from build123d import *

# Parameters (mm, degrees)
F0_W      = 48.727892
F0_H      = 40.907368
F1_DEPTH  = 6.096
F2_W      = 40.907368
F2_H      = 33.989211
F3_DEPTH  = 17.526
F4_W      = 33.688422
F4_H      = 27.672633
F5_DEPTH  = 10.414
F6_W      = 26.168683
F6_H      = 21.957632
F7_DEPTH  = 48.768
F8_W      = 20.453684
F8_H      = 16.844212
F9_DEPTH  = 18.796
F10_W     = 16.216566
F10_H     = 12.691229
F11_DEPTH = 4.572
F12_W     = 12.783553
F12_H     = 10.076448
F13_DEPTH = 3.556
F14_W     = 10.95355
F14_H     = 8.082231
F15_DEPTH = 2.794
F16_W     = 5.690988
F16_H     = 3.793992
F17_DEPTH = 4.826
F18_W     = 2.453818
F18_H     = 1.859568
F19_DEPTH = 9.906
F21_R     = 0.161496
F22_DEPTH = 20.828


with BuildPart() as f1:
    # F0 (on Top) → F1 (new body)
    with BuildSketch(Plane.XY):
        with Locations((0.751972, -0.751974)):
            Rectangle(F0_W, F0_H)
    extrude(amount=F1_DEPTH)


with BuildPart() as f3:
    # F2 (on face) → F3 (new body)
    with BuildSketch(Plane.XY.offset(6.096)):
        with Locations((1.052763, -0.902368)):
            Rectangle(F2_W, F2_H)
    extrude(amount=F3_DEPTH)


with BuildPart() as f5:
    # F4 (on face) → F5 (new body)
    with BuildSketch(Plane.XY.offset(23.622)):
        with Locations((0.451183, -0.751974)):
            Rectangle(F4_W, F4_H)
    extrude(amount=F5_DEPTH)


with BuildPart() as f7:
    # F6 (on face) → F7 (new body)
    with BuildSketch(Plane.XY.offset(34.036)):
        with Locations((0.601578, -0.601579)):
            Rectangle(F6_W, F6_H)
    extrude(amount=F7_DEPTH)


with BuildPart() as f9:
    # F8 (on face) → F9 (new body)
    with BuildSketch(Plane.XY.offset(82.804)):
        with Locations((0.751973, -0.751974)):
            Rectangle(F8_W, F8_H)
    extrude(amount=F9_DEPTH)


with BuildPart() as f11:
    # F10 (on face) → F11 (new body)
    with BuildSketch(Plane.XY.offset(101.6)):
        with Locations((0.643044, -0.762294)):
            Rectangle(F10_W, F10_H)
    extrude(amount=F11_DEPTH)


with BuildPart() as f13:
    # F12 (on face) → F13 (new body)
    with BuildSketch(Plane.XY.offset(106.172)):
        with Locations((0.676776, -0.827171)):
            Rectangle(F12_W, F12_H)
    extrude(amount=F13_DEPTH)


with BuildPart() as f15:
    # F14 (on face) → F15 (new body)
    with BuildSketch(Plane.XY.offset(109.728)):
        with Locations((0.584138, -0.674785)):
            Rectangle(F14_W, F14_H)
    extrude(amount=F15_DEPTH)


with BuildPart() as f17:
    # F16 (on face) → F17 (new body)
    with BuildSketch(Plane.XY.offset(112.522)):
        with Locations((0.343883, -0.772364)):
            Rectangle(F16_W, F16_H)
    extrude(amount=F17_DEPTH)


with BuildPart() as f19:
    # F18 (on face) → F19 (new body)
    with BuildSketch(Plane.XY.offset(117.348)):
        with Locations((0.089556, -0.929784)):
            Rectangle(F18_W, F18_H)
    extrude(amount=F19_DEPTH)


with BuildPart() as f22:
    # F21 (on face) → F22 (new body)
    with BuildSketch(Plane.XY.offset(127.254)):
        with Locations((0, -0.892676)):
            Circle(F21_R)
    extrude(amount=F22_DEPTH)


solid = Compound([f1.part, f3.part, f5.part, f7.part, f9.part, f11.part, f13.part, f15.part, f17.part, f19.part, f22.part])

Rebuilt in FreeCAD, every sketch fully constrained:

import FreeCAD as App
import Part
import Sketcher

V = App.Vector
Q = App.Units.Quantity

doc = App.newDocument("Part")
params = doc.addObject("Spreadsheet::Sheet", "Params")
for row, (alias, value) in enumerate([
    ("pad1_length", "0.24 in"),
    ("pad2_length", "0.69 in"),
    ("pad3_length", "0.41 in"),
    ("pad4_length", "1.92 in"),
    ("pad5_length", "0.74 in"),
    ("pad6_length", "0.18 in"),
    ("pad7_length", "0.14 in"),
    ("pad8_length", "0.11 in"),
    ("pad9_length", "0.19 in"),
    ("pad10_length", "0.39 in"),
    ("pad11_length", "0.82 in"),
], start=1):
    params.set(f"A{row}", alias)
    params.set(f"B{row}", "=" + value)
    params.setAlias(f"B{row}", alias)

body = doc.addObject("PartDesign::Body", "Body")

# Sketch on XY plane
sketch1 = doc.addObject("Sketcher::SketchObject", "Sketch")
body.addObject(sketch1)
sketch1.AttachmentSupport = (doc.XY_Plane, [""])
sketch1.MapMode = "FlatFace"
sketch1.addGeometry([
    Part.LineSegment(V(-24, 20, 0), V(-24, -21, 0)),
    Part.LineSegment(V(-24, -21, 0), V(25, -21, 0)),
    Part.LineSegment(V(25, -21, 0), V(25, 20, 0)),
    Part.LineSegment(V(25, 20, 0), V(-24, 20, 0)),
], False)
sketch1.addConstraint([
    Sketcher.Constraint("Coincident", 0, 2, 1, 1),
    Sketcher.Constraint("Coincident", 1, 2, 2, 1),
    Sketcher.Constraint("Coincident", 2, 2, 3, 1),
    Sketcher.Constraint("Coincident", 3, 2, 0, 1),
    Sketcher.Constraint("Vertical", 0),
    Sketcher.Constraint("Horizontal", 1),
    Sketcher.Constraint("Vertical", 2),
    Sketcher.Constraint("Horizontal", 3),
    Sketcher.Constraint("DistanceX", 1, 1, 1, 2, 48.727892),
    Sketcher.Constraint("DistanceY", 0, 2, 0, 1, 40.907368),
    Sketcher.Constraint("DistanceX", -1, 1, 1, 2, 25.115918),
    Sketcher.Constraint("DistanceY", -1, 1, 2, 2, 19.70171),
])
pad1 = doc.addObject("PartDesign::Pad", "Pad")
body.addObject(pad1)
pad1.Profile = sketch1
pad1.setExpression("Length", "Params.pad1_length")
body2 = doc.addObject("PartDesign::Body", "Body001")

# Sketch on XY plane
sketch2 = doc.addObject("Sketcher::SketchObject", "Sketch001")
body2.addObject(sketch2)
sketch2.AttachmentSupport = (doc.getObject("XY_Plane001"), [""])
sketch2.MapMode = "FlatFace"
sketch2.AttachmentOffset = App.Placement(V(0, 0, 0.24 * 25.4), App.Rotation())
sketch2.addGeometry([
    Part.LineSegment(V(-19, 16, 0), V(-19, -18, 0)),
    Part.LineSegment(V(-19, -18, 0), V(22, -18, 0)),
    Part.LineSegment(V(22, -18, 0), V(22, 16, 0)),
    Part.LineSegment(V(22, 16, 0), V(-19, 16, 0)),
], False)
sketch2.addConstraint([
    Sketcher.Constraint("Coincident", 0, 2, 1, 1),
    Sketcher.Constraint("Coincident", 1, 2, 2, 1),
    Sketcher.Constraint("Coincident", 2, 2, 3, 1),
    Sketcher.Constraint("Coincident", 3, 2, 0, 1),
    Sketcher.Constraint("Vertical", 0),
    Sketcher.Constraint("Horizontal", 1),
    Sketcher.Constraint("Vertical", 2),
    Sketcher.Constraint("Horizontal", 3),
    Sketcher.Constraint("DistanceX", 1, 1, 1, 2, 40.907368),
    Sketcher.Constraint("DistanceY", 0, 2, 0, 1, 33.989211),
    Sketcher.Constraint("DistanceX", 0, 2, -1, 1, 19.400921),
    Sketcher.Constraint("DistanceY", 0, 2, -1, 1, 17.896974),
])
pad2 = doc.addObject("PartDesign::Pad", "Pad001")
body2.addObject(pad2)
pad2.Profile = sketch2
pad2.setExpression("Length", "Params.pad2_length")
body3 = doc.addObject("PartDesign::Body", "Body002")

# Sketch on XY plane
sketch3 = doc.addObject("Sketcher::SketchObject", "Sketch002")
body3.addObject(sketch3)
sketch3.AttachmentSupport = (doc.getObject("XY_Plane002"), [""])
sketch3.MapMode = "FlatFace"
sketch3.AttachmentOffset = App.Placement(V(0, 0, 0.93 * 25.4), App.Rotation())
sketch3.addGeometry([
    Part.LineSegment(V(-16, 13, 0), V(-16, -15, 0)),
    Part.LineSegment(V(-16, -15, 0), V(17, -15, 0)),
    Part.LineSegment(V(17, -15, 0), V(17, 13, 0)),
    Part.LineSegment(V(17, 13, 0), V(-16, 13, 0)),
], False)
sketch3.addConstraint([
    Sketcher.Constraint("Coincident", 0, 2, 1, 1),
    Sketcher.Constraint("Coincident", 1, 2, 2, 1),
    Sketcher.Constraint("Coincident", 2, 2, 3, 1),
    Sketcher.Constraint("Coincident", 3, 2, 0, 1),
    Sketcher.Constraint("Vertical", 0),
    Sketcher.Constraint("Horizontal", 1),
    Sketcher.Constraint("Vertical", 2),
    Sketcher.Constraint("Horizontal", 3),
    Sketcher.Constraint("DistanceX", 1, 1, 1, 2, 33.688422),
    Sketcher.Constraint("DistanceY", 0, 2, 0, 1, 27.672633),
    Sketcher.Constraint("DistanceX", 0, 2, -1, 1, 16.393028),
    Sketcher.Constraint("DistanceY", 0, 2, -1, 1, 14.58829),
])
pad3 = doc.addObject("PartDesign::Pad", "Pad002")
body3.addObject(pad3)
pad3.Profile = sketch3
pad3.setExpression("Length", "Params.pad3_length")
body4 = doc.addObject("PartDesign::Body", "Body003")

# Sketch on XY plane
sketch4 = doc.addObject("Sketcher::SketchObject", "Sketch003")
body4.addObject(sketch4)
sketch4.AttachmentSupport = (doc.getObject("XY_Plane003"), [""])
sketch4.MapMode = "FlatFace"
sketch4.AttachmentOffset = App.Placement(V(0, 0, 1.34 * 25.4), App.Rotation())
sketch4.addGeometry([
    Part.LineSegment(V(-12, 10, 0), V(-12, -12, 0)),
    Part.LineSegment(V(-12, -12, 0), V(14, -12, 0)),
    Part.LineSegment(V(14, -12, 0), V(14, 10, 0)),
    Part.LineSegment(V(14, 10, 0), V(-12, 10, 0)),
], False)
sketch4.addConstraint([
    Sketcher.Constraint("Coincident", 0, 2, 1, 1),
    Sketcher.Constraint("Coincident", 1, 2, 2, 1),
    Sketcher.Constraint("Coincident", 2, 2, 3, 1),
    Sketcher.Constraint("Coincident", 3, 2, 0, 1),
    Sketcher.Constraint("Vertical", 0),
    Sketcher.Constraint("Horizontal", 1),
    Sketcher.Constraint("Vertical", 2),
    Sketcher.Constraint("Horizontal", 3),
    Sketcher.Constraint("DistanceY", 0, 2, 0, 1, 21.957632),
    Sketcher.Constraint("DistanceX", 1, 1, 1, 2, 26.168683),
    Sketcher.Constraint("DistanceX", -1, 1, 1, 2, 13.68592),
    Sketcher.Constraint("DistanceY", 0, 2, -1, 1, 11.580395),
])
pad4 = doc.addObject("PartDesign::Pad", "Pad003")
body4.addObject(pad4)
pad4.Profile = sketch4
pad4.setExpression("Length", "Params.pad4_length")
body5 = doc.addObject("PartDesign::Body", "Body004")

# Sketch on XY plane
sketch5 = doc.addObject("Sketcher::SketchObject", "Sketch004")
body5.addObject(sketch5)
sketch5.AttachmentSupport = (doc.getObject("XY_Plane004"), [""])
sketch5.MapMode = "FlatFace"
sketch5.AttachmentOffset = App.Placement(V(0, 0, 3.26 * 25.4), App.Rotation())
sketch5.addGeometry([
    Part.LineSegment(V(-9, 8, 0), V(-9, -9, 0)),
    Part.LineSegment(V(-9, -9, 0), V(11, -9, 0)),
    Part.LineSegment(V(11, -9, 0), V(11, 8, 0)),
    Part.LineSegment(V(11, 8, 0), V(-9, 8, 0)),
], False)
sketch5.addConstraint([
    Sketcher.Constraint("Coincident", 0, 2, 1, 1),
    Sketcher.Constraint("Coincident", 1, 2, 2, 1),
    Sketcher.Constraint("Coincident", 2, 2, 3, 1),
    Sketcher.Constraint("Coincident", 3, 2, 0, 1),
    Sketcher.Constraint("Vertical", 0),
    Sketcher.Constraint("Horizontal", 1),
    Sketcher.Constraint("Vertical", 2),
    Sketcher.Constraint("Horizontal", 3),
    Sketcher.Constraint("DistanceY", 0, 2, 0, 1, 16.844212),
    Sketcher.Constraint("DistanceX", 1, 1, 1, 2, 20.453684),
    Sketcher.Constraint("DistanceX", 0, 2, -1, 1, 9.474869),
    Sketcher.Constraint("DistanceY", 0, 2, -1, 1, 9.17408),
])
pad5 = doc.addObject("PartDesign::Pad", "Pad004")
body5.addObject(pad5)
pad5.Profile = sketch5
pad5.setExpression("Length", "Params.pad5_length")
body6 = doc.addObject("PartDesign::Body", "Body005")

# Sketch on XY plane
sketch6 = doc.addObject("Sketcher::SketchObject", "Sketch005")
body6.addObject(sketch6)
sketch6.AttachmentSupport = (doc.getObject("XY_Plane005"), [""])
sketch6.MapMode = "FlatFace"
sketch6.AttachmentOffset = App.Placement(V(0, 0, 4 * 25.4), App.Rotation())
sketch6.addGeometry([
    Part.LineSegment(V(-7, 6, 0), V(-7, -7, 0)),
    Part.LineSegment(V(-7, -7, 0), V(9, -7, 0)),
    Part.LineSegment(V(9, -7, 0), V(9, 6, 0)),
    Part.LineSegment(V(9, 6, 0), V(-7, 6, 0)),
], False)
sketch6.addConstraint([
    Sketcher.Constraint("Coincident", 0, 2, 1, 1),
    Sketcher.Constraint("Coincident", 1, 2, 2, 1),
    Sketcher.Constraint("Coincident", 2, 2, 3, 1),
    Sketcher.Constraint("Coincident", 3, 2, 0, 1),
    Sketcher.Constraint("Vertical", 0),
    Sketcher.Constraint("Horizontal", 1),
    Sketcher.Constraint("Vertical", 2),
    Sketcher.Constraint("Horizontal", 3),
    Sketcher.Constraint("DistanceY", 0, 2, 0, 1, 12.691229),
    Sketcher.Constraint("DistanceX", 1, 1, 1, 2, 16.216566),
    Sketcher.Constraint("DistanceX", 0, 2, -1, 1, 7.465239),
    Sketcher.Constraint("DistanceY", 0, 2, -1, 1, 7.107908),
])
pad6 = doc.addObject("PartDesign::Pad", "Pad005")
body6.addObject(pad6)
pad6.Profile = sketch6
pad6.setExpression("Length", "Params.pad6_length")
body7 = doc.addObject("PartDesign::Body", "Body006")

# Sketch on XY plane
sketch7 = doc.addObject("Sketcher::SketchObject", "Sketch006")
body7.addObject(sketch7)
sketch7.AttachmentSupport = (doc.getObject("XY_Plane006"), [""])
sketch7.MapMode = "FlatFace"
sketch7.AttachmentOffset = App.Placement(V(0, 0, 4.18 * 25.4), App.Rotation())
sketch7.addGeometry([
    Part.LineSegment(V(-6, 4, 0), V(-6, -6, 0)),
    Part.LineSegment(V(-6, -6, 0), V(7, -6, 0)),
    Part.LineSegment(V(7, -6, 0), V(7, 4, 0)),
    Part.LineSegment(V(7, 4, 0), V(-6, 4, 0)),
], False)
sketch7.addConstraint([
    Sketcher.Constraint("Coincident", 0, 2, 1, 1),
    Sketcher.Constraint("Coincident", 1, 2, 2, 1),
    Sketcher.Constraint("Coincident", 2, 2, 3, 1),
    Sketcher.Constraint("Coincident", 3, 2, 0, 1),
    Sketcher.Constraint("Vertical", 0),
    Sketcher.Constraint("Horizontal", 1),
    Sketcher.Constraint("Vertical", 2),
    Sketcher.Constraint("Horizontal", 3),
    Sketcher.Constraint("DistanceX", 0, 2, -1, 1, Q("0.225 in")),
    Sketcher.Constraint("DistanceX", 1, 1, 1, 2, 12.783553),
    Sketcher.Constraint("DistanceY", 0, 2, 0, 1, 10.076448),
    Sketcher.Constraint("DistanceY", 0, 2, -1, 1, 5.865395),
])
pad7 = doc.addObject("PartDesign::Pad", "Pad006")
body7.addObject(pad7)
pad7.Profile = sketch7
pad7.setExpression("Length", "Params.pad7_length")
body8 = doc.addObject("PartDesign::Body", "Body007")

# Sketch on XY plane
sketch8 = doc.addObject("Sketcher::SketchObject", "Sketch007")
body8.addObject(sketch8)
sketch8.AttachmentSupport = (doc.getObject("XY_Plane007"), [""])
sketch8.MapMode = "FlatFace"
sketch8.AttachmentOffset = App.Placement(V(0, 0, 4.32 * 25.4), App.Rotation())
sketch8.addGeometry([
    Part.LineSegment(V(-5, 3, 0), V(-5, -5, 0)),
    Part.LineSegment(V(-5, -5, 0), V(6, -5, 0)),
    Part.LineSegment(V(6, -5, 0), V(6, 3, 0)),
    Part.LineSegment(V(6, 3, 0), V(-5, 3, 0)),
], False)
sketch8.addConstraint([
    Sketcher.Constraint("Coincident", 0, 2, 1, 1),
    Sketcher.Constraint("Coincident", 1, 2, 2, 1),
    Sketcher.Constraint("Coincident", 2, 2, 3, 1),
    Sketcher.Constraint("Coincident", 3, 2, 0, 1),
    Sketcher.Constraint("Vertical", 0),
    Sketcher.Constraint("Horizontal", 1),
    Sketcher.Constraint("Vertical", 2),
    Sketcher.Constraint("Horizontal", 3),
    Sketcher.Constraint("DistanceX", 1, 1, 1, 2, 10.95355),
    Sketcher.Constraint("DistanceY", 0, 2, 0, 1, 8.082231),
    Sketcher.Constraint("DistanceY", 0, 2, -1, 1, 4.715901),
    Sketcher.Constraint("DistanceX", 0, 2, -1, 1, 4.892637),
])
pad8 = doc.addObject("PartDesign::Pad", "Pad007")
body8.addObject(pad8)
pad8.Profile = sketch8
pad8.setExpression("Length", "Params.pad8_length")
body9 = doc.addObject("PartDesign::Body", "Body008")

# Sketch on XY plane
sketch9 = doc.addObject("Sketcher::SketchObject", "Sketch008")
body9.addObject(sketch9)
sketch9.AttachmentSupport = (doc.getObject("XY_Plane008"), [""])
sketch9.MapMode = "FlatFace"
sketch9.AttachmentOffset = App.Placement(V(0, 0, 4.43 * 25.4), App.Rotation())
sketch9.addGeometry([
    Part.LineSegment(V(-2.5, 1.1, 0), V(-2.5, -2.7, 0)),
    Part.LineSegment(V(-2.5, -2.7, 0), V(3.2, -2.7, 0)),
    Part.LineSegment(V(3.2, -2.7, 0), V(3.2, 1.1, 0)),
    Part.LineSegment(V(3.2, 1.1, 0), V(-2.5, 1.1, 0)),
], False)
sketch9.addConstraint([
    Sketcher.Constraint("Coincident", 0, 2, 1, 1),
    Sketcher.Constraint("Coincident", 1, 2, 2, 1),
    Sketcher.Constraint("Coincident", 2, 2, 3, 1),
    Sketcher.Constraint("Coincident", 3, 2, 0, 1),
    Sketcher.Constraint("Vertical", 0),
    Sketcher.Constraint("Horizontal", 1),
    Sketcher.Constraint("Vertical", 2),
    Sketcher.Constraint("Horizontal", 3),
    Sketcher.Constraint("DistanceX", 1, 1, 1, 2, 5.690988),
    Sketcher.Constraint("DistanceY", 0, 2, 0, 1, 3.793992),
    Sketcher.Constraint("DistanceX", 0, 2, -1, 1, 2.501611),
    Sketcher.Constraint("DistanceY", 0, 2, -1, 1, 2.66936),
])
pad9 = doc.addObject("PartDesign::Pad", "Pad008")
body9.addObject(pad9)
pad9.Profile = sketch9
pad9.setExpression("Length", "Params.pad9_length")
body10 = doc.addObject("PartDesign::Body", "Body009")

# Sketch on XY plane
sketch10 = doc.addObject("Sketcher::SketchObject", "Sketch009")
body10.addObject(sketch10)
sketch10.AttachmentSupport = (doc.getObject("XY_Plane009"), [""])
sketch10.MapMode = "FlatFace"
sketch10.AttachmentOffset = App.Placement(V(0, 0, 4.62 * 25.4), App.Rotation())
sketch10.addGeometry([
    Part.LineSegment(V(-1.1, 0, 0), V(-1.1, -1.9, 0)),
    Part.LineSegment(V(-1.1, -1.9, 0), V(1.3, -1.9, 0)),
    Part.LineSegment(V(1.3, -1.9, 0), V(1.3, 0, 0)),
    Part.LineSegment(V(1.3, 0, 0), V(-1.1, 0, 0)),
], False)
sketch10.addConstraint([
    Sketcher.Constraint("Coincident", 0, 2, 1, 1),
    Sketcher.Constraint("Coincident", 1, 2, 2, 1),
    Sketcher.Constraint("Coincident", 2, 2, 3, 1),
    Sketcher.Constraint("Coincident", 3, 2, 0, 1),
    Sketcher.Constraint("Vertical", 0),
    Sketcher.Constraint("Horizontal", 1),
    Sketcher.Constraint("Vertical", 2),
    Sketcher.Constraint("Horizontal", 3),
    Sketcher.Constraint("PointOnObject", 2, 2, -1),
    Sketcher.Constraint("DistanceX", 1, 1, 1, 2, 2.453818),
    Sketcher.Constraint("DistanceY", 0, 2, 0, 1, 1.859568),
    Sketcher.Constraint("DistanceX", 0, 2, -1, 1, 1.137353),
])
pad10 = doc.addObject("PartDesign::Pad", "Pad009")
body10.addObject(pad10)
pad10.Profile = sketch10
pad10.setExpression("Length", "Params.pad10_length")
body11 = doc.addObject("PartDesign::Body", "Body010")

# Sketch on XY plane
sketch11 = doc.addObject("Sketcher::SketchObject", "Sketch010")
body11.addObject(sketch11)
sketch11.AttachmentSupport = (doc.getObject("XY_Plane010"), [""])
sketch11.MapMode = "FlatFace"
sketch11.AttachmentOffset = App.Placement(V(0, 0, 5.01 * 25.4), App.Rotation())
sketch11.addGeometry(Part.Circle(V(0, -0.89, 0), V(0, 0, 1), 0.16), False)
sketch11.addConstraint([
    Sketcher.Constraint("PointOnObject", 0, 3, -2),
    Sketcher.Constraint("Diameter", 0, 0.322992),
    Sketcher.Constraint("DistanceY", 0, 3, -1, 1, 0.892676),
])
pad11 = doc.addObject("PartDesign::Pad", "Pad010")
body11.addObject(pad11)
pad11.Profile = sketch11
pad11.setExpression("Length", "Params.pad11_length")

doc.recompute()
